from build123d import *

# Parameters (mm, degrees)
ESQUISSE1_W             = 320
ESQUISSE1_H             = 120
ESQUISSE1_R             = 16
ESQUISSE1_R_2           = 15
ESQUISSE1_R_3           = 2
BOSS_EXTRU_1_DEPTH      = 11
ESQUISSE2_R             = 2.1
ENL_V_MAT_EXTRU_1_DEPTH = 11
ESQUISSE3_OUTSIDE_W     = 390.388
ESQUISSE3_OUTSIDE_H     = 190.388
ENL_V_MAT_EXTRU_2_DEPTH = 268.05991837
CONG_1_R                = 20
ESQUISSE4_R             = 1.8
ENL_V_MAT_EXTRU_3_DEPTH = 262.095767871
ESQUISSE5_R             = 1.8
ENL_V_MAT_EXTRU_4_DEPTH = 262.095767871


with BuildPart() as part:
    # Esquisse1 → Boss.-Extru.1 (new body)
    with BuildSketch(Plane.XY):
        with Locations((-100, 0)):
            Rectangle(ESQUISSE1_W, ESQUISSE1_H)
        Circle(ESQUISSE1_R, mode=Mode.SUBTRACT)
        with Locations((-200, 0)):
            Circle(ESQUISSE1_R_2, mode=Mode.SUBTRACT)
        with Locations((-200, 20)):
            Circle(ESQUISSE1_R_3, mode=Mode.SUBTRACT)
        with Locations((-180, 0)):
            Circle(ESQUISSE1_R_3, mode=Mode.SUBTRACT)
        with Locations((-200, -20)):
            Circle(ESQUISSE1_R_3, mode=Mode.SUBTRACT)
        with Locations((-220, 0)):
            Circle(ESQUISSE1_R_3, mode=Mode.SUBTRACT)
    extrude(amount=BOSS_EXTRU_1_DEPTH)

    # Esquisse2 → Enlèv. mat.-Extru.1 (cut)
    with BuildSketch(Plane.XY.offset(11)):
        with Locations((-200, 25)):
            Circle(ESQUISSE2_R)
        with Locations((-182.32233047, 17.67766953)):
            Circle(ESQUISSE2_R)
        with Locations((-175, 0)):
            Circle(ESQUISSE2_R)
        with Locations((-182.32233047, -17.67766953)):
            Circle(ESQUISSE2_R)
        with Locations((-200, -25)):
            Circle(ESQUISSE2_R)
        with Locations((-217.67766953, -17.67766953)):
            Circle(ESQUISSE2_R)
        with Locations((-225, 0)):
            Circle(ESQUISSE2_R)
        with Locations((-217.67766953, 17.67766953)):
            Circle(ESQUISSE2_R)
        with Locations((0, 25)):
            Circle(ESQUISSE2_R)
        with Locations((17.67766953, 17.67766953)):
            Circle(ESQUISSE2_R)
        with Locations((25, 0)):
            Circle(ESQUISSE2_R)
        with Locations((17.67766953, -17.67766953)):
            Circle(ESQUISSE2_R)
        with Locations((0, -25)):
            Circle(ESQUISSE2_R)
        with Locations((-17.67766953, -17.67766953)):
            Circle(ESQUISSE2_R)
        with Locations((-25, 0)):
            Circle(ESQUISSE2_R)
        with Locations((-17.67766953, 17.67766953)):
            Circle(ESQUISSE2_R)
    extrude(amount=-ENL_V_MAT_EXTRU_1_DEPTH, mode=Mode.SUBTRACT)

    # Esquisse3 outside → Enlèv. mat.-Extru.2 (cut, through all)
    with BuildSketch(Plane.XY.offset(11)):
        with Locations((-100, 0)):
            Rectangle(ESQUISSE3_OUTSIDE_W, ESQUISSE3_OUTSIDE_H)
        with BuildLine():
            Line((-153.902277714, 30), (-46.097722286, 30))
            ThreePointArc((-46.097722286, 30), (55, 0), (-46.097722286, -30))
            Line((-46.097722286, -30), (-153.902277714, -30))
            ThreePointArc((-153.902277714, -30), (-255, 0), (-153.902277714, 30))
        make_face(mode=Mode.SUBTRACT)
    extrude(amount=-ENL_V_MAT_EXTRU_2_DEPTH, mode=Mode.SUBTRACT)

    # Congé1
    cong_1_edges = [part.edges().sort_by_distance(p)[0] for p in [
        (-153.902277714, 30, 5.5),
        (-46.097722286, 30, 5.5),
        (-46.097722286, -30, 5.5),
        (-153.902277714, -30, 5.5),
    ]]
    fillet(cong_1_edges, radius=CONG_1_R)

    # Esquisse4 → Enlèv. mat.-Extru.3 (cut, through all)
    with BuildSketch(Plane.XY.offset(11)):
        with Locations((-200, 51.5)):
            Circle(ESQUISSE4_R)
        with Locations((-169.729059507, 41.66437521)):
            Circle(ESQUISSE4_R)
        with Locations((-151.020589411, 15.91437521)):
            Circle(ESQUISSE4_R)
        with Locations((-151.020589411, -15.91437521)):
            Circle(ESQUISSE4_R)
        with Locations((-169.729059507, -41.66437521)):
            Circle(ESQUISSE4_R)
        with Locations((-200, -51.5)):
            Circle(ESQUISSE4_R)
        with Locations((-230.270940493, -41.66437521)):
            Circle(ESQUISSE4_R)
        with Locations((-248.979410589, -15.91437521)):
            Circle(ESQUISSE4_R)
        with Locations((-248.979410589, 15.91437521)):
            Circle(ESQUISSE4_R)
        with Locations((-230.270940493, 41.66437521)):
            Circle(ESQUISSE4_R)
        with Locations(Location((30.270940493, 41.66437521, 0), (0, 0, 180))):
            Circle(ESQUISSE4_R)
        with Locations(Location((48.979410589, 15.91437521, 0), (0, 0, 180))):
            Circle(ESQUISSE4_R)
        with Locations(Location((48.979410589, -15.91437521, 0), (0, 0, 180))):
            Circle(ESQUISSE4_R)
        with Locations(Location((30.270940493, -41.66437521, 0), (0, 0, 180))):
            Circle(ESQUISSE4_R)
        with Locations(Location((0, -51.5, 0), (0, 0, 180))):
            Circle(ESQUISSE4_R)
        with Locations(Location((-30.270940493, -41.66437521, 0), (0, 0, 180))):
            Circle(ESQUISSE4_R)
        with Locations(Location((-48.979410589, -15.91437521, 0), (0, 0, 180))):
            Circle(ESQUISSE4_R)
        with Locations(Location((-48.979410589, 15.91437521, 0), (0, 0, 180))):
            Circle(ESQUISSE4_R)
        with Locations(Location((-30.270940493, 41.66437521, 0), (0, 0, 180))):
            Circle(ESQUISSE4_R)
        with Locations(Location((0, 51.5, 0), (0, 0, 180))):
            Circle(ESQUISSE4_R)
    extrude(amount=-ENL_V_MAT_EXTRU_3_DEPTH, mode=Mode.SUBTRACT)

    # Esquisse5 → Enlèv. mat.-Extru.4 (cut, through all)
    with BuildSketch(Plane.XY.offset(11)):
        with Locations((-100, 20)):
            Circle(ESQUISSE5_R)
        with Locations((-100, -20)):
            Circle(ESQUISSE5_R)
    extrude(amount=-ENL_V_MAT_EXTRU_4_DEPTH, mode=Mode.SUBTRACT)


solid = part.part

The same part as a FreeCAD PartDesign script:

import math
import FreeCAD as App
import Part
import Sketcher
Q = App.Units.Quantity


def edges_at(feature, points):
    """Names of the edges that pass closest to the given points."""
    edges = feature.Shape.Edges
    near = lambda p: min(range(len(edges)), key=lambda i: edges[i].distToShape(Part.Vertex(*p))[0])
    return sorted({f"Edge{near(p) + 1}" for p in points})


def add_polygon(sketch, points):
    """Adds a closed chain of lines whose ends are joined by coincident constraints."""
    first, n = sketch.GeometryCount, len(points)
    for a, b in zip(points, points[1:] + points[:1]):
        sketch.addGeometry(Part.LineSegment(App.Vector(*a, 0), App.Vector(*b, 0)), False)
    for i in range(n):
        sketch.addConstraint(Sketcher.Constraint("Coincident", first + i, 2, first + (i + 1) % n, 1))

doc = App.newDocument("Part")
params = doc.addObject("Spreadsheet::Sheet", "Params")
for row, (alias, value) in enumerate([
    ("sketch1_diameter", "4 mm"),
    ("sketch1_diameter2", "30 mm"),
    ("sketch1_diameter3", "32 mm"),
    ("sketch1_width", "320 mm"),
    ("sketch1_height", "120 mm"),
    ("pad1_length", "11 mm"),
    ("sketch2_diameter", "4.2 mm"),
    ("pocket1_length", "11 mm"),
    ("sketch3_radius", "55 mm"),
    ("fillet_radius", "20 mm"),
    ("sketch4_diameter", "3.6 mm"),
    ("sketch5_diameter", "3.6 mm"),
], start=1):
    params.set(f"A{row}", alias)
    params.set(f"B{row}", "=" + value)
    params.setAlias(f"B{row}", alias)

body = doc.addObject("PartDesign::Body", "Body")

# Sketch on XY plane
sketch1 = doc.addObject("Sketcher::SketchObject", "Sketch")
body.addObject(sketch1)
sketch1.AttachmentSupport = (doc.XY_Plane, [""])
sketch1.MapMode = "FlatFace"
add_polygon(sketch1, [(-260, 60), (-260, -60), (60, -60), (60, 60)])  # lines 0-3
sketch1.addGeometry(Part.Circle(App.Vector(-200, -20, 0), App.Vector(0, 0, 1), 2), False)  # 4
sketch1.addGeometry(Part.Circle(App.Vector(-220, 0, 0), App.Vector(0, 0, 1), 2), False)  # 5
sketch1.addGeometry(Part.Circle(App.Vector(-200, 0, 0), App.Vector(0, 0, 1), 15), False)  # 6
sketch1.addGeometry(Part.Circle(App.Vector(-180, 0, 0), App.Vector(0, 0, 1), 2), False)  # 7
sketch1.addGeometry(Part.Circle(App.Vector(-200, 20, 0), App.Vector(0, 0, 1), 2), False)  # 8
sketch1.addGeometry(Part.Circle(App.Vector(0, 0, 0), App.Vector(0, 0, 1), 16), False)  # 9
sketch1.addConstraint(Sketcher.Constraint("Vertical", 0))
sketch1.addConstraint(Sketcher.Constraint("Horizontal", 1))
sketch1.addConstraint(Sketcher.Constraint("Vertical", 2))
sketch1.addConstraint(Sketcher.Constraint("Horizontal", 3))
sketch1.addConstraint(Sketcher.Constraint("Coincident", 9, 3, -1, 1))
sketch1.addConstraint(Sketcher.Constraint("Equal", 4, 5))
sketch1.addConstraint(Sketcher.Constraint("Equal", 5, 7))
sketch1.addConstraint(Sketcher.Constraint("Equal", 7, 8))
sketch1.addConstraint(Sketcher.Constraint("Symmetric", 4, 3, 8, 3, -1))
sketch1.addConstraint(Sketcher.Constraint("PointOnObject", 5, 3, -1))
sketch1.addConstraint(Sketcher.Constraint("PointOnObject", 6, 3, -1))
sketch1.addConstraint(Sketcher.Constraint("PointOnObject", 7, 3, -1))
sketch1.addConstraint(Sketcher.Constraint("Vertical", 4, 3, 6, 3))
sketch1.addConstraint(Sketcher.Constraint("Diameter", 4, Q("4 mm")))
sketch1.addConstraint(Sketcher.Constraint("Diameter", 6, Q("30 mm")))
sketch1.addConstraint(Sketcher.Constraint("Diameter", 9, Q("32 mm")))
sketch1.addConstraint(Sketcher.Constraint("DistanceX", 1, 1, 1, 2, Q("320 mm")))
sketch1.addConstraint(Sketcher.Constraint("DistanceY", 0, 2, 0, 1, Q("120 mm")))
sketch1.addConstraint(Sketcher.Constraint("DistanceX", 4, 3, -1, 1, Q("200 mm")))
sketch1.addConstraint(Sketcher.Constraint("DistanceY", 4, 3, -1, 1, Q("20 mm")))
sketch1.addConstraint(Sketcher.Constraint("DistanceX", 5, 3, -1, 1, Q("220 mm")))
sketch1.addConstraint(Sketcher.Constraint("DistanceX", 7, 3, -1, 1, Q("180 mm")))
sketch1.addConstraint(Sketcher.Constraint("DistanceX", 0, 2, -1, 1, Q("260 mm")))
sketch1.addConstraint(Sketcher.Constraint("DistanceY", 0, 2, -1, 1, Q("60 mm")))
sketch1.setExpression("Constraints[17]", "Params.sketch1_diameter")
sketch1.setExpression("Constraints[18]", "Params.sketch1_diameter2")
sketch1.setExpression("Constraints[19]", "Params.sketch1_diameter3")
sketch1.setExpression("Constraints[20]", "Params.sketch1_width")
sketch1.setExpression("Constraints[21]", "Params.sketch1_height")
pad1 = doc.addObject("PartDesign::Pad", "Pad")
body.addObject(pad1)
pad1.Profile = sketch1
pad1.setExpression("Length", "Params.pad1_length")

# Sketch on XY plane
sketch2 = doc.addObject("Sketcher::SketchObject", "Sketch001")
body.addObject(sketch2)
sketch2.AttachmentSupport = (doc.XY_Plane, [""])
sketch2.MapMode = "FlatFace"
sketch2.AttachmentOffset = App.Placement(App.Vector(0, 0, 11), App.Rotation())
sketch2.addGeometry(Part.Circle(App.Vector(-200, 25, 0), App.Vector(0, 0, 1), 2.1), False)
sketch2.addGeometry(Part.Circle(App.Vector(-182.3, 17.7, 0), App.Vector(0, 0, 1), 2.1), False)
sketch2.addGeometry(Part.Circle(App.Vector(-175, 0, 0), App.Vector(0, 0, 1), 2.1), False)
sketch2.addGeometry(Part.Circle(App.Vector(-182.3, -17.7, 0), App.Vector(0, 0, 1), 2.1), False)
sketch2.addGeometry(Part.Circle(App.Vector(-200, -25, 0), App.Vector(0, 0, 1), 2.1), False)
sketch2.addGeometry(Part.Circle(App.Vector(-217.7, -17.7, 0), App.Vector(0, 0, 1), 2.1), False)
sketch2.addGeometry(Part.Circle(App.Vector(-225, 0, 0), App.Vector(0, 0, 1), 2.1), False)
sketch2.addGeometry(Part.Circle(App.Vector(-217.7, 17.7, 0), App.Vector(0, 0, 1), 2.1), False)
sketch2.addGeometry(Part.Circle(App.Vector(0, 25, 0), App.Vector(0, 0, 1), 2.1), False)
sketch2.addGeometry(Part.Circle(App.Vector(17.7, 17.7, 0), App.Vector(0, 0, 1), 2.1), False)
sketch2.addGeometry(Part.Circle(App.Vector(25, 0, 0), App.Vector(0, 0, 1), 2.1), False)
sketch2.addGeometry(Part.Circle(App.Vector(17.7, -17.7, 0), App.Vector(0, 0, 1), 2.1), False)
sketch2.addGeometry(Part.Circle(App.Vector(0, -25, 0), App.Vector(0, 0, 1), 2.1), False)
sketch2.addGeometry(Part.Circle(App.Vector(-17.7, -17.7, 0), App.Vector(0, 0, 1), 2.1), False)
sketch2.addGeometry(Part.Circle(App.Vector(-25, 0, 0), App.Vector(0, 0, 1), 2.1), False)
sketch2.addGeometry(Part.Circle(App.Vector(-17.7, 17.7, 0), App.Vector(0, 0, 1), 2.1), False)
sketch2.addConstraint(Sketcher.Constraint("Equal", 0, 1))
sketch2.addConstraint(Sketcher.Constraint("Equal", 1, 2))
sketch2.addConstraint(Sketcher.Constraint("Equal", 2, 3))
sketch2.addConstraint(Sketcher.Constraint("Equal", 3, 4))
sketch2.addConstraint(Sketcher.Constraint("Equal", 4, 5))
sketch2.addConstraint(Sketcher.Constraint("Equal", 5, 6))
sketch2.addConstraint(Sketcher.Constraint("Equal", 6, 7))
sketch2.addConstraint(Sketcher.Constraint("Equal", 7, 8))
sketch2.addConstraint(Sketcher.Constraint("Equal", 8, 9))
sketch2.addConstraint(Sketcher.Constraint("Equal", 9, 10))
sketch2.addConstraint(Sketcher.Constraint("Equal", 10, 11))
sketch2.addConstraint(Sketcher.Constraint("Equal", 11, 12))
sketch2.addConstraint(Sketcher.Constraint("Equal", 12, 13))
sketch2.addConstraint(Sketcher.Constraint("Equal", 13, 14))
sketch2.addConstraint(Sketcher.Constraint("Equal", 14, 15))
sketch2.addConstraint(Sketcher.Constraint("Symmetric", 8, 3, 12, 3, -1, 1))
sketch2.addConstraint(Sketcher.Constraint("Symmetric", 9, 3, 13, 3, -1, 1))
sketch2.addConstraint(Sketcher.Constraint("Symmetric", 10, 3, 14, 3, -1, 1))
sketch2.addConstraint(Sketcher.Constraint("Symmetric", 11, 3, 15, 3, -1, 1))
sketch2.addConstraint(Sketcher.Constraint("Symmetric", 11, 3, 13, 3, -2))
sketch2.addConstraint(Sketcher.Constraint("Symmetric", 1, 3, 3, 3, -1))
sketch2.addConstraint(Sketcher.Constraint("Symmetric", 0, 3, 4, 3, -1))
sketch2.addConstraint(Sketcher.Constraint("Symmetric", 5, 3, 7, 3, -1))
sketch2.addConstraint(Sketcher.Constraint("PointOnObject", 2, 3, -1))
sketch2.addConstraint(Sketcher.Constraint("PointOnObject", 6, 3, -1))
sketch2.addConstraint(Sketcher.Constraint("PointOnObject", 8, 3, -2))
sketch2.addConstraint(Sketcher.Constraint("PointOnObject", 10, 3, -1))
sketch2.addConstraint(Sketcher.Constraint("Horizontal", 3, 3, 5, 3))
sketch2.addConstraint(Sketcher.Constraint("Horizontal", 0, 3, 8, 3))
sketch2.addConstraint(Sketcher.Constraint("Horizontal", 7, 3, 9, 3))
sketch2.addConstraint(Sketcher.Constraint("Diameter", 0, Q("4.2 mm")))
sketch2.addConstraint(Sketcher.Constraint("DistanceX", 0, 3, -1, 1, Q("200 mm")))
sketch2.addConstraint(Sketcher.Constraint("DistanceY", -1, 1, 0, 3, Q("25 mm")))
sketch2.addConstraint(Sketcher.Constraint("DistanceX", 2, 3, -1, 1, Q("175 mm")))
sketch2.addConstraint(Sketcher.Constraint("DistanceX", 6, 3, -1, 1, Q("225 mm")))
sketch2.addConstraint(Sketcher.Constraint("DistanceX", -1, 1, 10, 3, Q("25 mm")))
sketch2.addConstraint(Sketcher.Constraint("DistanceX", 1, 3, 9, 3, Q("200 mm")))
sketch2.addConstraint(Sketcher.Constraint("DistanceX", 1, 3, -1, 1, Q("182.32233 mm")))
sketch2.addConstraint(Sketcher.Constraint("DistanceY", -1, 1, 1, 3, Q("17.67767 mm")))
sketch2.addConstraint(Sketcher.Constraint("DistanceX", 5, 3, -1, 1, Q("217.67767 mm")))
sketch2.setExpression("Constraints[30]", "Params.sketch2_diameter")
pocket1 = doc.addObject("PartDesign::Pocket", "Pocket")
body.addObject(pocket1)
pocket1.Profile = sketch2
pocket1.setExpression("Length", "Params.pocket1_length")

# Sketch on XY plane
sketch3 = doc.addObject("Sketcher::SketchObject", "Sketch002")
body.addObject(sketch3)
sketch3.AttachmentSupport = (doc.XY_Plane, [""])
sketch3.MapMode = "FlatFace"
sketch3.AttachmentOffset = App.Placement(App.Vector(0, 0, 11), App.Rotation())
add_polygon(sketch3, [(-295, 95), (-295, -95), (95, -95), (95, 95)])  # lines 0-3
sketch3.addGeometry(Part.ArcOfCircle(Part.Circle(App.Vector(-200, 0, 0), App.Vector(0, 0, 1), 55), math.radians(33), math.radians(327)), False)  # 4
sketch3.addGeometry(Part.LineSegment(App.Vector(-154, 30, 0), App.Vector(-46, 30, 0)), False)  # 5
sketch3.addGeometry(Part.ArcOfCircle(Part.Circle(App.Vector(0, 0, 0), App.Vector(0, 0, 1), 55), math.radians(-147), math.radians(147)), False)  # 6
sketch3.addGeometry(Part.LineSegment(App.Vector(-46, -30, 0), App.Vector(-154, -30, 0)), False)  # 7
sketch3.addConstraint(Sketcher.Constraint("Coincident", 4, 1, 5, 1))
sketch3.addConstraint(Sketcher.Constraint("Coincident", 5, 2, 6, 2))
sketch3.addConstraint(Sketcher.Constraint("Coincident", 6, 1, 7, 1))
sketch3.addConstraint(Sketcher.Constraint("Coincident", 7, 2, 4, 2))
sketch3.addConstraint(Sketcher.Constraint("Vertical", 0))
sketch3.addConstraint(Sketcher.Constraint("Horizontal", 1))
sketch3.addConstraint(Sketcher.Constraint("Vertical", 2))
sketch3.addConstraint(Sketcher.Constraint("Horizontal", 3))
sketch3.addConstraint(Sketcher.Constraint("Horizontal", 5))
sketch3.addConstraint(Sketcher.Constraint("Horizontal", 7))
sketch3.addConstraint(Sketcher.Constraint("Coincident", 6, 3, -1, 1))
sketch3.addConstraint(Sketcher.Constraint("Equal", 4, 6))
sketch3.addConstraint(Sketcher.Constraint("Symmetric", 4, 1, 7, 2, -1))
sketch3.addConstraint(Sketcher.Constraint("Radius", 4, Q("55 mm")))
sketch3.addConstraint(Sketcher.Constraint("DistanceX", 4, 3, -1, 1, Q("200 mm")))
sketch3.addConstraint(Sketcher.Constraint("DistanceY", -1, 1, 4, 1, Q("30 mm")))
sketch3.addConstraint(Sketcher.Constraint("DistanceX", 1, 1, 1, 2, Q("390.388 mm")))
sketch3.addConstraint(Sketcher.Constraint("DistanceY", 0, 2, 0, 1, Q("190.388 mm")))
sketch3.addConstraint(Sketcher.Constraint("DistanceX", 0, 2, -1, 1, Q("295.194 mm")))
sketch3.addConstraint(Sketcher.Constraint("DistanceY", 0, 2, -1, 1, Q("95.194 mm")))
sketch3.setExpression("Constraints[17]", "Params.sketch3_radius")
pocket2 = doc.addObject("PartDesign::Pocket", "Pocket001")
body.addObject(pocket2)
pocket2.Profile = sketch3
pocket2.Type = "ThroughAll"
doc.recompute()

fillet = doc.addObject("PartDesign::Fillet", "Fillet")
body.addObject(fillet)
fillet.Base = (pocket2, edges_at(pocket2, [
    (-153.902, 30, 5.5),
    (-46.098, 30, 5.5),
    (-46.098, -30, 5.5),
    (-153.902, -30, 5.5),
]))
fillet.setExpression("Radius", "Params.fillet_radius")

# Sketch on XY plane
sketch4 = doc.addObject("Sketcher::SketchObject", "Sketch003")
body.addObject(sketch4)
sketch4.AttachmentSupport = (doc.XY_Plane, [""])
sketch4.MapMode = "FlatFace"
sketch4.AttachmentOffset = App.Placement(App.Vector(0, 0, 11), App.Rotation())
sketch4.addGeometry(Part.Circle(App.Vector(-200, 51.5, 0), App.Vector(0, 0, 1), 1.8), False)
sketch4.addGeometry(Part.Circle(App.Vector(-169.7, 41.7, 0), App.Vector(0, 0, 1), 1.8), False)
sketch4.addGeometry(Part.Circle(App.Vector(-151, 15.9, 0), App.Vector(0, 0, 1), 1.8), False)
sketch4.addGeometry(Part.Circle(App.Vector(-151, -15.9, 0), App.Vector(0, 0, 1), 1.8), False)
sketch4.addGeometry(Part.Circle(App.Vector(-169.7, -41.7, 0), App.Vector(0, 0, 1), 1.8), False)
sketch4.addGeometry(Part.Circle(App.Vector(-200, -51.5, 0), App.Vector(0, 0, 1), 1.8), False)
sketch4.addGeometry(Part.Circle(App.Vector(-230.3, -41.7, 0), App.Vector(0, 0, 1), 1.8), False)
sketch4.addGeometry(Part.Circle(App.Vector(-249, -15.9, 0), App.Vector(0, 0, 1), 1.8), False)
sketch4.addGeometry(Part.Circle(App.Vector(-249, 15.9, 0), App.Vector(0, 0, 1), 1.8), False)
sketch4.addGeometry(Part.Circle(App.Vector(-230.3, 41.7, 0), App.Vector(0, 0, 1), 1.8), False)
sketch4.addGeometry(Part.Circle(App.Vector(30.3, 41.7, 0), App.Vector(0, 0, 1), 1.8), False)
sketch4.addGeometry(Part.Circle(App.Vector(49, 15.9, 0), App.Vector(0, 0, 1), 1.8), False)
sketch4.addGeometry(Part.Circle(App.Vector(49, -15.9, 0), App.Vector(0, 0, 1), 1.8), False)
sketch4.addGeometry(Part.Circle(App.Vector(30.3, -41.7, 0), App.Vector(0, 0, 1), 1.8), False)
sketch4.addGeometry(Part.Circle(App.Vector(0, -51.5, 0), App.Vector(0, 0, 1), 1.8), False)
sketch4.addGeometry(Part.Circle(App.Vector(-30.3, -41.7, 0), App.Vector(0, 0, 1), 1.8), False)
sketch4.addGeometry(Part.Circle(App.Vector(-49, -15.9, 0), App.Vector(0, 0, 1), 1.8), False)
sketch4.addGeometry(Part.Circle(App.Vector(-49, 15.9, 0), App.Vector(0, 0, 1), 1.8), False)
sketch4.addGeometry(Part.Circle(App.Vector(-30.3, 41.7, 0), App.Vector(0, 0, 1), 1.8), False)
sketch4.addGeometry(Part.Circle(App.Vector(0, 51.5, 0), App.Vector(0, 0, 1), 1.8), False)
sketch4.addConstraint(Sketcher.Constraint("Equal", 0, 1))
sketch4.addConstraint(Sketcher.Constraint("Equal", 1, 2))
sketch4.addConstraint(Sketcher.Constraint("Equal", 2, 3))
sketch4.addConstraint(Sketcher.Constraint("Equal", 3, 4))
sketch4.addConstraint(Sketcher.Constraint("Equal", 4, 5))
sketch4.addConstraint(Sketcher.Constraint("Equal", 5, 6))
sketch4.addConstraint(Sketcher.Constraint("Equal", 6, 7))
sketch4.addConstraint(Sketcher.Constraint("Equal", 7, 8))
sketch4.addConstraint(Sketcher.Constraint("Equal", 8, 9))
sketch4.addConstraint(Sketcher.Constraint("Equal", 9, 10))
sketch4.addConstraint(Sketcher.Constraint("Equal", 10, 11))
sketch4.addConstraint(Sketcher.Constraint("Equal", 11, 12))
sketch4.addConstraint(Sketcher.Constraint("Equal", 12, 13))
sketch4.addConstraint(Sketcher.Constraint("Equal", 13, 14))
sketch4.addConstraint(Sketcher.Constraint("Equal", 14, 15))
sketch4.addConstraint(Sketcher.Constraint("Equal", 15, 16))
sketch4.addConstraint(Sketcher.Constraint("Equal", 16, 17))
sketch4.addConstraint(Sketcher.Constraint("Equal", 17, 18))
sketch4.addConstraint(Sketcher.Constraint("Equal", 18, 19))
sketch4.addConstraint(Sketcher.Constraint("Symmetric", 10, 3, 15, 3, -1, 1))
sketch4.addConstraint(Sketcher.Constraint("Symmetric", 11, 3, 16, 3, -1, 1))
sketch4.addConstraint(Sketcher.Constraint("Symmetric", 12, 3, 17, 3, -1, 1))
sketch4.addConstraint(Sketcher.Constraint("Symmetric", 13, 3, 18, 3, -1, 1))
sketch4.addConstraint(Sketcher.Constraint("Symmetric", 14, 3, 19, 3, -1, 1))
sketch4.addConstraint(Sketcher.Constraint("Symmetric", 13, 3, 15, 3, -2))
sketch4.addConstraint(Sketcher.Constraint("Symmetric", 12, 3, 16, 3, -2))
sketch4.addConstraint(Sketcher.Constraint("Symmetric", 2, 3, 3, 3, -1))
sketch4.addConstraint(Sketcher.Constraint("Symmetric", 1, 3, 4, 3, -1))
sketch4.addConstraint(Sketcher.Constraint("Symmetric", 0, 3, 5, 3, -1))
sketch4.addConstraint(Sketcher.Constraint("Symmetric", 7, 3, 8, 3, -1))
sketch4.addConstraint(Sketcher.Constraint("Symmetric", 6, 3, 9, 3, -1))
sketch4.addConstraint(Sketcher.Constraint("PointOnObject", 14, 3, -2))
sketch4.addConstraint(Sketcher.Constraint("Horizontal", 4, 3, 6, 3))
sketch4.addConstraint(Sketcher.Constraint("Horizontal", 3, 3, 7, 3))
sketch4.addConstraint(Sketcher.Constraint("Horizontal", 9, 3, 10, 3))
sketch4.addConstraint(Sketcher.Constraint("Horizontal", 8, 3, 11, 3))
sketch4.addConstraint(Sketcher.Constraint("Horizontal", 5, 3, 14, 3))
sketch4.addConstraint(Sketcher.Constraint("Diameter", 0, Q("3.6 mm")))
sketch4.addConstraint(Sketcher.Constraint("DistanceX", 0, 3, -1, 1, Q("200 mm")))
sketch4.addConstraint(Sketcher.Constraint("DistanceY", 5, 3, 0, 3, Q("103 mm")))
sketch4.addConstraint(Sketcher.Constraint("DistanceX", 1, 3, 10, 3, Q("200 mm")))
sketch4.addConstraint(Sketcher.Constraint("DistanceX", 2, 3, 11, 3, Q("200 mm")))
sketch4.addConstraint(Sketcher.Constraint("DistanceY", 2, 3, 1, 3, Q("25.75 mm")))
sketch4.addConstraint(Sketcher.Constraint("DistanceX", 1, 3, -1, 1, Q("169.72906 mm")))
sketch4.addConstraint(Sketcher.Constraint("DistanceX", 2, 3, -1, 1, Q("151.020589 mm")))
sketch4.addConstraint(Sketcher.Constraint("DistanceX", 6, 3, -1, 1, Q("230.27094 mm")))
sketch4.addConstraint(Sketcher.Constraint("DistanceX", 7, 3, -1, 1, Q("248.979411 mm")))
sketch4.addConstraint(Sketcher.Constraint("DistanceY", 3, 3, 2, 3, Q("31.82875 mm")))
sketch4.setExpression("Constraints[37]", "Params.sketch4_diameter")
pocket3 = doc.addObject("PartDesign::Pocket", "Pocket002")
body.addObject(pocket3)
pocket3.Profile = sketch4
pocket3.Type = "ThroughAll"

# Sketch on XY plane
sketch5 = doc.addObject("Sketcher::SketchObject", "Sketch004")
body.addObject(sketch5)
sketch5.AttachmentSupport = (doc.XY_Plane, [""])
sketch5.MapMode = "FlatFace"
sketch5.AttachmentOffset = App.Placement(App.Vector(0, 0, 11), App.Rotation())
sketch5.addGeometry(Part.Circle(App.Vector(-100, 20, 0), App.Vector(0, 0, 1), 1.8), False)
sketch5.addGeometry(Part.Circle(App.Vector(-100, -20, 0), App.Vector(0, 0, 1), 1.8), False)
sketch5.addConstraint(Sketcher.Constraint("Equal", 0, 1))
sketch5.addConstraint(Sketcher.Constraint("Symmetric", 0, 3, 1, 3, -1))
sketch5.addConstraint(Sketcher.Constraint("Diameter", 0, Q("3.6 mm")))
sketch5.addConstraint(Sketcher.Constraint("DistanceX", 0, 3, -1, 1, Q("100 mm")))
sketch5.addConstraint(Sketcher.Constraint("DistanceY", -1, 1, 0, 3, Q("20 mm")))
sketch5.setExpression("Constraints[2]", "Params.sketch5_diameter")
pocket4 = doc.addObject("PartDesign::Pocket", "Pocket003")
body.addObject(pocket4)
pocket4.Profile = sketch5
pocket4.Type = "ThroughAll"

doc.recompute()
